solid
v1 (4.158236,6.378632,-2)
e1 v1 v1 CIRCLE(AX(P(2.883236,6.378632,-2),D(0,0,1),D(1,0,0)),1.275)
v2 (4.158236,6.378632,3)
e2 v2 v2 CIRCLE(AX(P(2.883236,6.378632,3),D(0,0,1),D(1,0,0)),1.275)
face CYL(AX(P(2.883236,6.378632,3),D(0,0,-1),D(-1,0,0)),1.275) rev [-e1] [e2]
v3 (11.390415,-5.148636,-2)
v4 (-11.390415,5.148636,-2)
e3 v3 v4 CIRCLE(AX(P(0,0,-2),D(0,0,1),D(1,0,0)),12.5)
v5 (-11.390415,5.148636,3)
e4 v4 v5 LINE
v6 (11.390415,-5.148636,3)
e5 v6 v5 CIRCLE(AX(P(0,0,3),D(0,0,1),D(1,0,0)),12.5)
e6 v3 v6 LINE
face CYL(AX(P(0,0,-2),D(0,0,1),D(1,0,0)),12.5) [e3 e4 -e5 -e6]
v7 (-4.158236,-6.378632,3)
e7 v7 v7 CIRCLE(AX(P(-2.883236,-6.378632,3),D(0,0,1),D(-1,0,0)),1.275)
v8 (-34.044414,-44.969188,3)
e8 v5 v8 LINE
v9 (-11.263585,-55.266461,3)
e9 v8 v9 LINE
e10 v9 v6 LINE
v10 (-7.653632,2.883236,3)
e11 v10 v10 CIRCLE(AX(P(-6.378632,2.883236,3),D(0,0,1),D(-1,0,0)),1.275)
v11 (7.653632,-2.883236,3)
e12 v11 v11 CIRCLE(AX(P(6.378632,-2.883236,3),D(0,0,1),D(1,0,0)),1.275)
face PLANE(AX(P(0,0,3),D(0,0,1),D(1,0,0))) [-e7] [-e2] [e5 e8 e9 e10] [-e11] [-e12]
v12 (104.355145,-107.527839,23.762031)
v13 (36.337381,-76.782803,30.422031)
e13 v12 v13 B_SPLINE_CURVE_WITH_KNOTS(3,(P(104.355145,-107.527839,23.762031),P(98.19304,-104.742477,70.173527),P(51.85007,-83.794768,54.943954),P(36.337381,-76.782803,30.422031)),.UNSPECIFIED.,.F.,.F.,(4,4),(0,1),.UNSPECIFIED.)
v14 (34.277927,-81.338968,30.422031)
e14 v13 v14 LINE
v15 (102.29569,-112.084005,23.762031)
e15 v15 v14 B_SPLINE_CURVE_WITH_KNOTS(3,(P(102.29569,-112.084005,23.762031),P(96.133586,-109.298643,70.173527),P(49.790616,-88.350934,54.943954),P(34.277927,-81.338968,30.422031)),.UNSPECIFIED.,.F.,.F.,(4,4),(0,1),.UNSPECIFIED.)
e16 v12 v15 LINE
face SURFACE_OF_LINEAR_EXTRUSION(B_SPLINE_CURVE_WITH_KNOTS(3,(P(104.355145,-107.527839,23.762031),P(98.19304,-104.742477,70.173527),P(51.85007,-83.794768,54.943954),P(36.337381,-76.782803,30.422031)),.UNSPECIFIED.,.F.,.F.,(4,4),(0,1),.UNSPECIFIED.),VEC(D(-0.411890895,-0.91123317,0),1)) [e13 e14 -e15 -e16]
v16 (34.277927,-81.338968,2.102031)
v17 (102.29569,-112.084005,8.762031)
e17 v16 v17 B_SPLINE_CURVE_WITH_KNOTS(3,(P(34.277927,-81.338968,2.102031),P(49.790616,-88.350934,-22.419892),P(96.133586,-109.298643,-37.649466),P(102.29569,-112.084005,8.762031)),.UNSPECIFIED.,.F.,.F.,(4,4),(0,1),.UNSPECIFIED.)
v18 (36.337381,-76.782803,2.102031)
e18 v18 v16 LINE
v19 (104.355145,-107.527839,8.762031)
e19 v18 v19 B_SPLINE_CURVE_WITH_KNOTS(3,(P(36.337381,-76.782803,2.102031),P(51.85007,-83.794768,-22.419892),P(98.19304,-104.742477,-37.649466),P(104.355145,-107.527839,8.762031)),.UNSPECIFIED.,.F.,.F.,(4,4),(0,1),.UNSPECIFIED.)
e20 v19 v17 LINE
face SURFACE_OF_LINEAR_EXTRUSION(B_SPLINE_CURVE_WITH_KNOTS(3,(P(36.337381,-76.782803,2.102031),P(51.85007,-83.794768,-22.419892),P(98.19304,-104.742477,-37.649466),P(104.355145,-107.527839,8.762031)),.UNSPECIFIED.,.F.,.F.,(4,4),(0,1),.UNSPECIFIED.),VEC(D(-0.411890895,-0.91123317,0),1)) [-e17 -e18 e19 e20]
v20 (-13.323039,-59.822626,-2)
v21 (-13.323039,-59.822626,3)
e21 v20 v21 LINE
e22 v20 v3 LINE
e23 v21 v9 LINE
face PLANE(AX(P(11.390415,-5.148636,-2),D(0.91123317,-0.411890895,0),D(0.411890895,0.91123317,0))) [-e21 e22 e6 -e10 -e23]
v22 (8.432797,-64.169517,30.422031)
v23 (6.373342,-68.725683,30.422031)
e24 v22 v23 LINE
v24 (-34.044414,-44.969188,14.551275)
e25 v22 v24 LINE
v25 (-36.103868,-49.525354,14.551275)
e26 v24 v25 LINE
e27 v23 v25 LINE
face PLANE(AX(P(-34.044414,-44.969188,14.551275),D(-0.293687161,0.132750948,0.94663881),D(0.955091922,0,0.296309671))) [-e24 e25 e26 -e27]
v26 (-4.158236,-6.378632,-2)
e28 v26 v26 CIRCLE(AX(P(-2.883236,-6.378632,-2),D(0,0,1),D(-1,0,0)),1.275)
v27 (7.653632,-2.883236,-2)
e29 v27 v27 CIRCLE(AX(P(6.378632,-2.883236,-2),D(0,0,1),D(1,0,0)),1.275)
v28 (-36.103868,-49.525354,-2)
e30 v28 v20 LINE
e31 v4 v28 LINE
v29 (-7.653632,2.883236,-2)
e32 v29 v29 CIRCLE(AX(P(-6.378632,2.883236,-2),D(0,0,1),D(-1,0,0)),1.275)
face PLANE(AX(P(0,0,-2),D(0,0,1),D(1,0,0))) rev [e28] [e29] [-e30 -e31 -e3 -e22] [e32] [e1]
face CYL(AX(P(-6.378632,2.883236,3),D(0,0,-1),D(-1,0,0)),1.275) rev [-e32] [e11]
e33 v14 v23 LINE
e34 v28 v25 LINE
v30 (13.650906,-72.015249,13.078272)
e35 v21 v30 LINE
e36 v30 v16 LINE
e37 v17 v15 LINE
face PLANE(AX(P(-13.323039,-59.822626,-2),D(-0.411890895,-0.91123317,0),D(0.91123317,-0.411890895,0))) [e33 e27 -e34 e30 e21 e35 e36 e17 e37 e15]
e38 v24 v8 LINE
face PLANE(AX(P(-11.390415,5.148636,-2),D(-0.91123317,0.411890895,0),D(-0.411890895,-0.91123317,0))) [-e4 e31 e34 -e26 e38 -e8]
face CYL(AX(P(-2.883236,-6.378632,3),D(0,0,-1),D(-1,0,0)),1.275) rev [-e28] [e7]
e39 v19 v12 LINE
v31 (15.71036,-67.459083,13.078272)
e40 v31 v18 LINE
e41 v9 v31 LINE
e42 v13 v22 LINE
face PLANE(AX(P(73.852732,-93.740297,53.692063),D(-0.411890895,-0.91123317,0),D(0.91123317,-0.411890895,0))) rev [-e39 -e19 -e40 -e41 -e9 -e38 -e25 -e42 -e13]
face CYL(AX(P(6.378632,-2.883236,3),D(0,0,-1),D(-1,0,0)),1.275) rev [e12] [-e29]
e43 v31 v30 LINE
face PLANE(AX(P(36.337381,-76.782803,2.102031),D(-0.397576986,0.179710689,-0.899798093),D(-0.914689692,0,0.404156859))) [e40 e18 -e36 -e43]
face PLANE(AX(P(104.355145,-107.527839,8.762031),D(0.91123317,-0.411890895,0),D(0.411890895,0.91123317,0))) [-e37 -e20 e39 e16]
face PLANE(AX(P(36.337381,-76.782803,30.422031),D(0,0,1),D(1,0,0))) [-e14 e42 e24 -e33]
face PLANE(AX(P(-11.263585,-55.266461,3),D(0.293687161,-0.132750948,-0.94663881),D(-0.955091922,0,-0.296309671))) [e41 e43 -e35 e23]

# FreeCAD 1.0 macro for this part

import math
import FreeCAD as App
import Part
import Sketcher
Q = App.Units.Quantity

doc = App.newDocument("Part")
body = doc.addObject("PartDesign::Body", "Body")

sketch1 = doc.addObject("Sketcher::SketchObject", "Sketch")
body.addObject(sketch1)
sketch1.AttachmentSupport = (doc.XY_Plane, [""])
sketch1.MapMode = "FlatFace"
sketch1.addGeometry(Part.Circle(App.Vector(0, 0, 0), App.Vector(0, 0, 1), 10), False)
sketch1.addGeometry(Part.Circle(App.Vector(-2.9, -6.4, 0), App.Vector(0, 0, 1), 1.3), False)
sketch1.addGeometry(Part.Circle(App.Vector(6.4, -2.9, 0), App.Vector(0, 0, 1), 1.3), False)
sketch1.addGeometry(Part.Circle(App.Vector(-6.4, 2.9, 0), App.Vector(0, 0, 1), 1.3), False)
sketch1.addGeometry(Part.Circle(App.Vector(2.9, 6.4, 0), App.Vector(0, 0, 1), 1.3), False)
sketch1.addConstraint(Sketcher.Constraint("Coincident", 0, 3, -1, 1))
sketch1.addConstraint(Sketcher.Constraint("Equal", 1, 2))
sketch1.addConstraint(Sketcher.Constraint("Equal", 2, 3))
sketch1.addConstraint(Sketcher.Constraint("Equal", 3, 4))
sketch1.addConstraint(Sketcher.Constraint("Symmetric", 2, 3, 3, 3, -1, 1))
sketch1.addConstraint(Sketcher.Constraint("Symmetric", 1, 3, 4, 3, -1, 1))
sketch1.addConstraint(Sketcher.Constraint("Diameter", 0, Q("20 mm")))
sketch1.addConstraint(Sketcher.Constraint("Diameter", 1, Q("2.55 mm")))
sketch1.addConstraint(Sketcher.Constraint("DistanceX", 1, 3, 2, 3, Q("9.261868 mm")))
sketch1.addConstraint(Sketcher.Constraint("DistanceY", 1, 3, 3, 3, Q("9.261868 mm")))
sketch1.addConstraint(Sketcher.Constraint("DistanceX", 1, 3, -1, 1, Q("2.883236 mm")))
sketch1.addConstraint(Sketcher.Constraint("DistanceY", 1, 3, -1, 1, Q("6.378632 mm")))
pad1 = doc.addObject("PartDesign::Pad", "Pad")
body.addObject(pad1)
pad1.Profile = sketch1
pad1.Length = 3

sketch2 = doc.addObject("Sketcher::SketchObject", "Sketch001")
body.addObject(sketch2)
sketch2.AttachmentSupport = (doc.XY_Plane, [""])
sketch2.MapMode = "FlatFace"
sketch2.AttachmentOffset = App.Placement(App.Vector(0, 0, 3), App.Rotation())
sketch2.addGeometry(Part.LineSegment(App.Vector(-13.3, -59.8, 0), App.Vector(11.4, -5.1, 0)), False)
sketch2.addGeometry(Part.ArcOfCircle(Part.Circle(App.Vector(0, 0, 0), App.Vector(0, 0, 1), 12.5), math.radians(-24), math.radians(156)), False)
sketch2.addGeometry(Part.LineSegment(App.Vector(-11.4, 5.1, 0), App.Vector(-36.1, -49.5, 0)), False)
sketch2.addGeometry(Part.LineSegment(App.Vector(-36.1, -49.5, 0), App.Vector(-13.3, -59.8, 0)), False)
sketch2.addGeometry(Part.Circle(App.Vector(6.4, -2.9, 0), App.Vector(0, 0, 1), 1.3), False)
sketch2.addGeometry(Part.Circle(App.Vector(-2.9, -6.4, 0), App.Vector(0, 0, 1), 1.3), False)
sketch2.addGeometry(Part.Circle(App.Vector(2.9, 6.4, 0), App.Vector(0, 0, 1), 1.3), False)
sketch2.addGeometry(Part.Circle(App.Vector(-6.4, 2.9, 0), App.Vector(0, 0, 1), 1.3), False)
sketch2.addConstraint(Sketcher.Constraint("Tangent", 0, 2, 1, 1))
sketch2.addConstraint(Sketcher.Constraint("Tangent", 1, 2, 2, 1))
sketch2.addConstraint(Sketcher.Constraint("Coincident", 2, 2, 3, 1))
sketch2.addConstraint(Sketcher.Constraint("Coincident", 3, 2, 0, 1))
sketch2.addConstraint(Sketcher.Constraint("Coincident", 1, 3, -1, 1))
sketch2.addConstraint(Sketcher.Constraint("Equal", 4, 5))
sketch2.addConstraint(Sketcher.Constraint("Equal", 5, 6))
sketch2.addConstraint(Sketcher.Constraint("Equal", 6, 7))
sketch2.addConstraint(Sketcher.Constraint("Symmetric", 5, 3, 6, 3, -1, 1))
sketch2.addConstraint(Sketcher.Constraint("Symmetric", 4, 3, 7, 3, -1, 1))
sketch2.addConstraint(Sketcher.Constraint("Parallel", 0, 2))
sketch2.addConstraint(Sketcher.Constraint("Perpendicular", 2, 3))
sketch2.addConstraint(Sketcher.Constraint("Radius", 1, Q("12.5 mm")))
sketch2.addConstraint(Sketcher.Constraint("Diameter", 4, Q("2.55 mm")))
sketch2.addConstraint(Sketcher.Constraint("Distance", 0, Q("60 mm")))
sketch2.addConstraint(Sketcher.Constraint("DistanceY", 0, 2, 4, 3, Q("2.2654 mm")))
sketch2.addConstraint(Sketcher.Constraint("DistanceX", 2, 2, 4, 3, Q("42.482501 mm")))
sketch2.addConstraint(Sketcher.Constraint("DistanceX", 2, 2, -1, 1, Q("36.103868 mm")))
sketch2.addConstraint(Sketcher.Constraint("DistanceX", 5, 3, 4, 3, Q("9.261868 mm")))
sketch2.addConstraint(Sketcher.Constraint("DistanceY", 4, 3, 6, 3, Q("9.261868 mm")))
pad2 = doc.addObject("PartDesign::Pad", "Pad001")
body.addObject(pad2)
pad2.Profile = sketch2
pad2.Length = 5
pad2.Reversed = True

sketch3 = doc.addObject("Sketcher::SketchObject", "Sketch002")
body.addObject(sketch3)
sketch3.Placement = App.Placement(App.Vector(-24.713454, -54.67399, 0), App.Rotation(App.Vector(-0.91123317, 0.411890895, 0), App.Vector(0, 0, -0.999999999), App.Vector(-0.411890895, -0.91123317, 0), "ZXY"))
sketch3.addGeometry(Part.LineSegment(App.Vector(-64.737965, -30.422031, 0), App.Vector(-34.115084, -30.422031, 0)), False)
sketch3.addGeometry(Part.LineSegment(App.Vector(-34.115084, -30.422031, 0), App.Vector(12.5, -14.551275, 0)), False)
sketch3.addGeometry(Part.LineSegment(App.Vector(12.5, -14.551275, 0), App.Vector(12.5, -3, 0)), False)
sketch3.addGeometry(Part.LineSegment(App.Vector(12.5, -3, 0), App.Vector(-12.5, -3, 0)), False)
sketch3.addGeometry(Part.LineSegment(App.Vector(-12.5, -3, 0), App.Vector(-42.101584, -13.078272, 0)), False)
sketch3.addGeometry(Part.LineSegment(App.Vector(-42.101584, -13.078272, 0), App.Vector(-64.737965, -2.102031, 0)), False)
sketch3.addGeometry(Part.BSplineCurve([App.Vector(-64.737965, -2.102031, 0), App.Vector(-81.761806, 22.419892, 0), App.Vector(-132.619228, 37.649466, 0), App.Vector(-139.381608, -8.762031, 0)], [4, 4], [0, 1], False, 3, [1, 1, 1, 1], False), False)
sketch3.addGeometry(Part.LineSegment(App.Vector(-139.381608, -8.762031, 0), App.Vector(-139.381608, -23.762031, 0)), False)
sketch3.addGeometry(Part.BSplineCurve([App.Vector(-64.737965, -30.422031, 0), App.Vector(-81.761806, -54.943954, 0), App.Vector(-132.619228, -70.173527, 0), App.Vector(-139.381608, -23.762031, 0)], [4, 4], [0, 1], False, 3, [1, 1, 1, 1], False), False)
sketch3.addConstraint(Sketcher.Constraint("Block", 6))
sketch3.addConstraint(Sketcher.Constraint("Block", 8))
sketch3.addConstraint(Sketcher.Constraint("Coincident", 0, 2, 1, 1))
sketch3.addConstraint(Sketcher.Constraint("Coincident", 1, 2, 2, 1))
sketch3.addConstraint(Sketcher.Constraint("Coincident", 2, 2, 3, 1))
sketch3.addConstraint(Sketcher.Constraint("Coincident", 3, 2, 4, 1))
sketch3.addConstraint(Sketcher.Constraint("Coincident", 4, 2, 5, 1))
sketch3.addConstraint(Sketcher.Constraint("Coincident", 5, 2, 6, 1))
sketch3.addConstraint(Sketcher.Constraint("Coincident", 6, 2, 7, 1))
sketch3.addConstraint(Sketcher.Constraint("Coincident", 7, 2, 8, 2))
sketch3.addConstraint(Sketcher.Constraint("Coincident", 8, 1, 0, 1))
sketch3.addConstraint(Sketcher.Constraint("Horizontal", 0))
sketch3.addConstraint(Sketcher.Constraint("Vertical", 2))
sketch3.addConstraint(Sketcher.Constraint("Horizontal", 3))
sketch3.addConstraint(Sketcher.Constraint("DistanceX", 3, 2, 3, 1, Q("25 mm")))
sketch3.addConstraint(Sketcher.Constraint("DistanceY", 2, 2, -1, 1, Q("3 mm")))
sketch3.addConstraint(Sketcher.Constraint("DistanceX", -1, 1, 1, 2, Q("12.5 mm")))
sketch3.addConstraint(Sketcher.Constraint("Distance", 4, Q("31.270199 mm")))
sketch3.addConstraint(Sketcher.Constraint("DistanceX", 0, 1, 0, 2, Q("30.622881 mm")))
sketch3.addConstraint(Sketcher.Constraint("DistanceX", 4, 2, 0, 2, Q("7.9865 mm")))
sketch3.addConstraint(Sketcher.Constraint("DistanceY", 2, 1, 2, 2, Q("11.551275 mm")))
pad3 = doc.addObject("PartDesign::Pad", "Pad002")
body.addObject(pad3)
pad3.Profile = sketch3
pad3.Length = 5
pad3.Reversed = True

doc.recompute()
